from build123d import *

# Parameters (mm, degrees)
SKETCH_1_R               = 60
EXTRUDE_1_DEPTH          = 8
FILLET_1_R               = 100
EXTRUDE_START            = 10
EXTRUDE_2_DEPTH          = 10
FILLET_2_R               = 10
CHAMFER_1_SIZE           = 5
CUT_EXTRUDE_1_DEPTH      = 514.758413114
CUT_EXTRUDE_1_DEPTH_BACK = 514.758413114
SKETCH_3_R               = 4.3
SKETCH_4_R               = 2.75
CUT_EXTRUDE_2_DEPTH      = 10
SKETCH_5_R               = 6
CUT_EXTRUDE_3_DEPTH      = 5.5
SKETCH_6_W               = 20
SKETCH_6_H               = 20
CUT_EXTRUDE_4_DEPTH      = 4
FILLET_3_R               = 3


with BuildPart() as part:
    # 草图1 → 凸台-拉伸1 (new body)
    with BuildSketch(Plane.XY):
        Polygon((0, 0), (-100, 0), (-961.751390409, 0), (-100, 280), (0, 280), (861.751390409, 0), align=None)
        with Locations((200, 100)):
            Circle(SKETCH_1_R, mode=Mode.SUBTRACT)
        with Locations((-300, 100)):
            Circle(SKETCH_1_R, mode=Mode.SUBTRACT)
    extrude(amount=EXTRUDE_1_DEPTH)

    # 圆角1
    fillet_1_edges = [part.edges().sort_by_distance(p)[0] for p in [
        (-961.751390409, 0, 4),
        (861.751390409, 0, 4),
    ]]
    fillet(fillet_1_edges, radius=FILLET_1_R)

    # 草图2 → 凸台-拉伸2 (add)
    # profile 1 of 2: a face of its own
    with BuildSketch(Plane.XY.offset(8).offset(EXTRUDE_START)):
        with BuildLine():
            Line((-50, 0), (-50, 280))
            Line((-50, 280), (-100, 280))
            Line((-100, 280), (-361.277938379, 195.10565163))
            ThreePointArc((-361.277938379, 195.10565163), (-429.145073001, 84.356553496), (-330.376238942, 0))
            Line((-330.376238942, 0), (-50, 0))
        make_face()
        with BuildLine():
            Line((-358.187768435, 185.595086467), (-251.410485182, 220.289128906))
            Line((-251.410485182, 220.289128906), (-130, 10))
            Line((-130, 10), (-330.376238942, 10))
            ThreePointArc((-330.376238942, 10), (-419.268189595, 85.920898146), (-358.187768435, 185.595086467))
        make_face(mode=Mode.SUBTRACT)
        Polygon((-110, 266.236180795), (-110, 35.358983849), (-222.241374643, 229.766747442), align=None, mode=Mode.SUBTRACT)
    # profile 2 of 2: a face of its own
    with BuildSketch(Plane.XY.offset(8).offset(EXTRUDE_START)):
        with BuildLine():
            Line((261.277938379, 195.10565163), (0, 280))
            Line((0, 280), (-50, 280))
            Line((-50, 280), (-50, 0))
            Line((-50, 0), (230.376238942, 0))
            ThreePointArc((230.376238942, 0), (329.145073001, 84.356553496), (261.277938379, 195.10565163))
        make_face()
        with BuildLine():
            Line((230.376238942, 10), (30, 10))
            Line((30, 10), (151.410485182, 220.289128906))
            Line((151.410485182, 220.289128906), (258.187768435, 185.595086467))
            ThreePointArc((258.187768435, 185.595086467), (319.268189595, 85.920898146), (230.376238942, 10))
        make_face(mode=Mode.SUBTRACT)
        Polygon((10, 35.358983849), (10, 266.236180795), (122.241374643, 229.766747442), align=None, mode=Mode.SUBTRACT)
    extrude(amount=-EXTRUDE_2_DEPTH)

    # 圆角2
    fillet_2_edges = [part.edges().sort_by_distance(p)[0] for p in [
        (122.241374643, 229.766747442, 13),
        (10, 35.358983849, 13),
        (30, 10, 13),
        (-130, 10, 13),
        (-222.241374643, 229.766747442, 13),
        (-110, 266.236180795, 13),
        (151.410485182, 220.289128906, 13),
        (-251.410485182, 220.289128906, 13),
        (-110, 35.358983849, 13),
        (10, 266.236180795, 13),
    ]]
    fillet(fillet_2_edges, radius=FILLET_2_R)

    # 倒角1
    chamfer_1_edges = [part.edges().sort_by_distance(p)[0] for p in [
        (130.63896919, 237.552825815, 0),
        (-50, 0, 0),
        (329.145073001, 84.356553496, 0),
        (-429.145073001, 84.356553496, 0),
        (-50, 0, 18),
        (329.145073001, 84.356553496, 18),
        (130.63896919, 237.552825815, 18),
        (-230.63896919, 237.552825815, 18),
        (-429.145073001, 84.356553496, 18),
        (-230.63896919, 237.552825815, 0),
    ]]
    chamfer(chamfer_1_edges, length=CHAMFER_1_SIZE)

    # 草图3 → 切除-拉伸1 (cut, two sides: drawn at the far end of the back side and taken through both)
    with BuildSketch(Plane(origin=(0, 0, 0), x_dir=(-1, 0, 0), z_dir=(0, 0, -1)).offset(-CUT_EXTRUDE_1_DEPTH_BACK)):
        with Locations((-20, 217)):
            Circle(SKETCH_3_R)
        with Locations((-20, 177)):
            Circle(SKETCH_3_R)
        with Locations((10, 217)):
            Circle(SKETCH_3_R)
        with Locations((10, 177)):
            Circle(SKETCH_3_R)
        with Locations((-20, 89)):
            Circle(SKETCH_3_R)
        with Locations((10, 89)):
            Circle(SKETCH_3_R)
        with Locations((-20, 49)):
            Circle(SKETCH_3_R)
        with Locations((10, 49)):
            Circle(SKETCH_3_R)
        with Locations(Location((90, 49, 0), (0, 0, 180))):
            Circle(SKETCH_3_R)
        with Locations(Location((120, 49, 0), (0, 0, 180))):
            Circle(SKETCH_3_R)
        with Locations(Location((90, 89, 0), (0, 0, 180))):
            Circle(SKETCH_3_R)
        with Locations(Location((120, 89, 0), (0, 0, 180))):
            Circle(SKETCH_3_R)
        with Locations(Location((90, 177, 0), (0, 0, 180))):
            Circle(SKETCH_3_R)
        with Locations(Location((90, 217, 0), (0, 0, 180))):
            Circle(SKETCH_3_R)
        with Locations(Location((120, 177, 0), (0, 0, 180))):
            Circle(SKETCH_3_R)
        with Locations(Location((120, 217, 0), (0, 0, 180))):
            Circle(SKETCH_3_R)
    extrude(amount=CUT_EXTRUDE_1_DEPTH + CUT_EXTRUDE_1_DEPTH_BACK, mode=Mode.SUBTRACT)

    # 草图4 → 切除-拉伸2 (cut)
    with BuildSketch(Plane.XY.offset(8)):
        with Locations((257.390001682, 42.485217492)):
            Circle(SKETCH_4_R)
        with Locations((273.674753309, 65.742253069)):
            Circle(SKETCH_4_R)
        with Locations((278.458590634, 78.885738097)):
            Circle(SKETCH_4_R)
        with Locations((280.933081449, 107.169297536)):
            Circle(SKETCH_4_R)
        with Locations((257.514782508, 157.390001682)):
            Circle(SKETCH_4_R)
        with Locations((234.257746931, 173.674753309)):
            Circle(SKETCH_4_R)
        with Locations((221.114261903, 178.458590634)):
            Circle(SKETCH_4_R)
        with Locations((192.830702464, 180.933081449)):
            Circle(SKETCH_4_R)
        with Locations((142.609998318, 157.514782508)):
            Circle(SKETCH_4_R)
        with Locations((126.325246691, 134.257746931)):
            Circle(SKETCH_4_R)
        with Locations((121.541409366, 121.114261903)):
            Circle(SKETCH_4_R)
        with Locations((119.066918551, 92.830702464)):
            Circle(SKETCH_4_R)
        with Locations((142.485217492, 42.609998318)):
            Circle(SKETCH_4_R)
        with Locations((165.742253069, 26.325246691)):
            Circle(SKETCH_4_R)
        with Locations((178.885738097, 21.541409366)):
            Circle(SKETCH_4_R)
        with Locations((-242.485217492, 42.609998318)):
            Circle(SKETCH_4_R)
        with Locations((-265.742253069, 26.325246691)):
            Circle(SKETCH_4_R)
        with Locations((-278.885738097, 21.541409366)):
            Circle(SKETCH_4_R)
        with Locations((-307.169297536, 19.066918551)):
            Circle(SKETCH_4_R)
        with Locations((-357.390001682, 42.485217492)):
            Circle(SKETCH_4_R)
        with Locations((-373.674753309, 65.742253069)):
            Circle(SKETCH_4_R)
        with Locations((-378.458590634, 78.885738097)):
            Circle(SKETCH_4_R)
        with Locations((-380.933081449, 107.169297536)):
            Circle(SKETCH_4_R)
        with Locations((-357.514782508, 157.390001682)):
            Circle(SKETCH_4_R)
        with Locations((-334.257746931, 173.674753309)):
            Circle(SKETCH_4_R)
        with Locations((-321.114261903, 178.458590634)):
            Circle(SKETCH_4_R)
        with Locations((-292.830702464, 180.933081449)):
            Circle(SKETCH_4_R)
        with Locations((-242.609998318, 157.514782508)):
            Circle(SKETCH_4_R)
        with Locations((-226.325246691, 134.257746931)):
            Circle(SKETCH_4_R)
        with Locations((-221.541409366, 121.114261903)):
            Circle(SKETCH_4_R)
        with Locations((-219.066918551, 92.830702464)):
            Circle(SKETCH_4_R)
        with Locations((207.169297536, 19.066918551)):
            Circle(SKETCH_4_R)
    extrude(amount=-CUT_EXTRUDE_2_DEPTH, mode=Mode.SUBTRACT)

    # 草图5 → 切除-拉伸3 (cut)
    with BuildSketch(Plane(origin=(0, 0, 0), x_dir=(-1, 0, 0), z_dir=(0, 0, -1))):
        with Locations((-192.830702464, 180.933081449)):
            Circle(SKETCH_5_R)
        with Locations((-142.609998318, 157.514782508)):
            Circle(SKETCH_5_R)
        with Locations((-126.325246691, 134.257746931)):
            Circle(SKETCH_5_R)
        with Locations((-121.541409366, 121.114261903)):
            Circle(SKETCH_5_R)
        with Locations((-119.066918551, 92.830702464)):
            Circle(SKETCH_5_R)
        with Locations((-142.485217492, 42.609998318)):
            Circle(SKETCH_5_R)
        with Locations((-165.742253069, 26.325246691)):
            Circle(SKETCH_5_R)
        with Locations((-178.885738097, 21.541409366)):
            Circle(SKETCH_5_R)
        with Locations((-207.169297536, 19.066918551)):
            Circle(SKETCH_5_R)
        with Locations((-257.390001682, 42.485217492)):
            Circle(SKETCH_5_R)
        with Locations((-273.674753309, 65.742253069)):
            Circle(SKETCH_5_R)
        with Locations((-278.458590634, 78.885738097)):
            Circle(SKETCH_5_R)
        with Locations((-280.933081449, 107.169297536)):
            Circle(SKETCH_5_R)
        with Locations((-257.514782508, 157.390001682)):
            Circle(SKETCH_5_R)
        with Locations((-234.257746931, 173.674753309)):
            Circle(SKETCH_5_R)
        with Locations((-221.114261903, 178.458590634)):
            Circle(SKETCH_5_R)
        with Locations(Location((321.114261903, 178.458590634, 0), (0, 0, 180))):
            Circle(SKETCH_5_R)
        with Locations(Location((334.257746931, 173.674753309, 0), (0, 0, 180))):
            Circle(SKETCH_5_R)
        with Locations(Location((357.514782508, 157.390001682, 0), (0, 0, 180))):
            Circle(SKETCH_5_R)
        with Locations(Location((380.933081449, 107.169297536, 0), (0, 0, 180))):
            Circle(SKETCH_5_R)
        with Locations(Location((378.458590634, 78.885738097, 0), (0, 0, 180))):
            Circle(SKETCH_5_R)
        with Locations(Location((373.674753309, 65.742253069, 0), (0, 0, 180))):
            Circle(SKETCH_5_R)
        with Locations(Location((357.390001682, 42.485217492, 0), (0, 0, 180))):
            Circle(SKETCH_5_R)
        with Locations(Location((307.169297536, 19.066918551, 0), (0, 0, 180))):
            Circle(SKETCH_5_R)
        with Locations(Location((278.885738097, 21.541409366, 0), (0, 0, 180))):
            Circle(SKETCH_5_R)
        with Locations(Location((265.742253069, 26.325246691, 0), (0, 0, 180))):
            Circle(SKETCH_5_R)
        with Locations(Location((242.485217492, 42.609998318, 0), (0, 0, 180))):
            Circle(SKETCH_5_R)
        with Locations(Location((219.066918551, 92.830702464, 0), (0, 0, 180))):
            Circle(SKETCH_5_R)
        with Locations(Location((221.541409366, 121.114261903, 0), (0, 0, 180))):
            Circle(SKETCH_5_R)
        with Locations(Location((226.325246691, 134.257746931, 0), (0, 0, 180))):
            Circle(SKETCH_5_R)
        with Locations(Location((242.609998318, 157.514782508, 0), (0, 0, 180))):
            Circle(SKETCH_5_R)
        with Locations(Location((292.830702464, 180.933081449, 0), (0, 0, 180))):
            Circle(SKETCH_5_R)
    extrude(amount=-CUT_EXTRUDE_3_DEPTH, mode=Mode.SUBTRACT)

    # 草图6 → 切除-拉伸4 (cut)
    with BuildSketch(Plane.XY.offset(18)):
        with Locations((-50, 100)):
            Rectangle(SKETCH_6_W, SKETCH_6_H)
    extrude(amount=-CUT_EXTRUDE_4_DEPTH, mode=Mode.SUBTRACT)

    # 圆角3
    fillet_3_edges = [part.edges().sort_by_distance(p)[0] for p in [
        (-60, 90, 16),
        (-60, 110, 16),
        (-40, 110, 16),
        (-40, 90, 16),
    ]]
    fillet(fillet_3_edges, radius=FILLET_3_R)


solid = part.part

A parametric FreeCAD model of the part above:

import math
import FreeCAD as App
import Part
import Sketcher
Q = App.Units.Quantity


def edges_at(feature, points):
    """Names of the edges that pass closest to the given points."""
    edges = feature.Shape.Edges
    near = lambda p: min(range(len(edges)), key=lambda i: edges[i].distToShape(Part.Vertex(*p))[0])
    return sorted({f"Edge{near(p) + 1}" for p in points})

doc = App.newDocument("Part")
body = doc.addObject("PartDesign::Body", "Body")

sketch1 = body.newObject("Sketcher::SketchObject", "Sketch")
sketch1.AttachmentSupport = (doc.getObject("XY_Plane"), [""])
sketch1.MapMode = "FlatFace"
sketch1.addGeometry([
    Part.LineSegment(App.Vector(-962, 0, 0), App.Vector(862, 0, 0)),
    Part.LineSegment(App.Vector(862, 0, 0), App.Vector(0, 280, 0)),
    Part.LineSegment(App.Vector(0, 280, 0), App.Vector(-100, 280, 0)),
    Part.LineSegment(App.Vector(-100, 280, 0), App.Vector(-962, 0, 0)),
    Part.Circle(App.Vector(200, 100, 0), App.Vector(0, 0, 1), 60),
    Part.Circle(App.Vector(-300, 100, 0), App.Vector(0, 0, 1), 60),
], False)
sketch1.addConstraint([
    Sketcher.Constraint("Coincident", 0, 2, 1, 1),
    Sketcher.Constraint("Coincident", 1, 2, 2, 1),
    Sketcher.Constraint("Coincident", 2, 2, 3, 1),
    Sketcher.Constraint("Coincident", 3, 2, 0, 1),
    Sketcher.Constraint("Horizontal", 0),
    Sketcher.Constraint("Horizontal", 2),
    Sketcher.Constraint("Equal", 4, 5),
    Sketcher.Constraint("PointOnObject", 0, 2, -1),
    Sketcher.Constraint("PointOnObject", 1, 2, -2),
    Sketcher.Constraint("Horizontal", 4, 3, 5, 3),
    Sketcher.Constraint("Equal", 1, 3),
    Sketcher.Constraint("Diameter", 4, Q("120 mm")),
    Sketcher.Constraint("DistanceX", 2, 2, 2, 1, Q("100 mm")),
    Sketcher.Constraint("Angle", 1, Q("162 deg")),
    Sketcher.Constraint("DistanceX", -1, 1, 4, 3, Q("200 mm")),
    Sketcher.Constraint("DistanceY", -1, 1, 4, 3, Q("100 mm")),
    Sketcher.Constraint("DistanceX", 5, 3, -1, 1, Q("300 mm")),
    Sketcher.Constraint("DistanceY", -1, 1, 1, 2, Q("280 mm")),
])
pad1 = body.newObject("PartDesign::Pad", "Pad")
pad1.Profile = sketch1
pad1.Length = 8
doc.recompute()

fillet = body.newObject("PartDesign::Fillet", "Fillet")
fillet.Base = (pad1, edges_at(pad1, [(-961.751, 0, 4), (861.751, 0, 4)]))
fillet.Radius = 100

sketch2 = body.newObject("Sketcher::SketchObject", "Sketch001")
sketch2.AttachmentSupport = (doc.getObject("XY_Plane"), [""])
sketch2.MapMode = "FlatFace"
sketch2.AttachmentOffset = App.Placement(App.Vector(0, 0, 18), App.Rotation())
sketch2.addGeometry([
    Part.LineSegment(App.Vector(-330, 0, 0), App.Vector(230, 0, 0)),
    Part.ArcOfCircle(Part.Circle(App.Vector(230, 100, 0), App.Vector(0, 0, 1), 100), math.radians(-90), math.radians(72)),
    Part.LineSegment(App.Vector(261, 195, 0), App.Vector(0, 280, 0)),
    Part.LineSegment(App.Vector(0, 280, 0), App.Vector(-100, 280, 0)),
    Part.LineSegment(App.Vector(-100, 280, 0), App.Vector(-361, 195, 0)),
    Part.ArcOfCircle(Part.Circle(App.Vector(-330, 100, 0), App.Vector(0, 0, 1), 100), math.radians(108), math.radians(270)),
    Part.ArcOfCircle(Part.Circle(App.Vector(-330, 100, 0), App.Vector(0, 0, 1), 90), math.radians(108), math.radians(270)),
    Part.LineSegment(App.Vector(-358, 186, 0), App.Vector(-251, 220, 0)),
    Part.LineSegment(App.Vector(-251, 220, 0), App.Vector(-130, 10, 0)),
    Part.LineSegment(App.Vector(-130, 10, 0), App.Vector(-330, 10, 0)),
    Part.LineSegment(App.Vector(-222, 230, 0), App.Vector(-110, 266, 0)),
    Part.LineSegment(App.Vector(-110, 266, 0), App.Vector(-110, 35, 0)),
    Part.LineSegment(App.Vector(-110, 35, 0), App.Vector(-222, 230, 0)),
    Part.LineSegment(App.Vector(10, 35, 0), App.Vector(10, 266, 0)),
    Part.LineSegment(App.Vector(10, 266, 0), App.Vector(122, 230, 0)),
    Part.LineSegment(App.Vector(122, 230, 0), App.Vector(10, 35, 0)),
    Part.ArcOfCircle(Part.Circle(App.Vector(230, 100, 0), App.Vector(0, 0, 1), 90), math.radians(-90), math.radians(72)),
    Part.LineSegment(App.Vector(230, 10, 0), App.Vector(30, 10, 0)),
    Part.LineSegment(App.Vector(30, 10, 0), App.Vector(151, 220, 0)),
    Part.LineSegment(App.Vector(151, 220, 0), App.Vector(258, 186, 0)),
], False)
sketch2.addConstraint([
    Sketcher.Constraint("Tangent", 0, 2, 1, 1),
    Sketcher.Constraint("Tangent", 1, 2, 2, 1),
    Sketcher.Constraint("Coincident", 2, 2, 3, 1),
    Sketcher.Constraint("Coincident", 3, 2, 4, 1),
    Sketcher.Constraint("Tangent", 4, 2, 5, 1),
    Sketcher.Constraint("Tangent", 5, 2, 0, 1),
    Sketcher.Constraint("Tangent", 6, 1, 7, 1),
    Sketcher.Constraint("Coincident", 7, 2, 8, 1),
    Sketcher.Constraint("Coincident", 8, 2, 9, 1),
    Sketcher.Constraint("Tangent", 9, 2, 6, 2),
    Sketcher.Constraint("Coincident", 10, 2, 11, 1),
    Sketcher.Constraint("Coincident", 11, 2, 12, 1),
    Sketcher.Constraint("Coincident", 12, 2, 10, 1),
    Sketcher.Constraint("Coincident", 13, 2, 14, 1),
    Sketcher.Constraint("Coincident", 14, 2, 15, 1),
    Sketcher.Constraint("Coincident", 15, 2, 13, 1),
    Sketcher.Constraint("Tangent", 16, 1, 17, 1),
    Sketcher.Constraint("Coincident", 17, 2, 18, 1),
    Sketcher.Constraint("Coincident", 18, 2, 19, 1),
    Sketcher.Constraint("Tangent", 19, 2, 16, 2),
    Sketcher.Constraint("Horizontal", 0),
    Sketcher.Constraint("Horizontal", 3),
    Sketcher.Constraint("Horizontal", 9),
    Sketcher.Constraint("Vertical", 11),
    Sketcher.Constraint("Vertical", 13),
    Sketcher.Constraint("Horizontal", 17),
    Sketcher.Constraint("Coincident", 6, 3, 5, 3),
    Sketcher.Constraint("Coincident", 16, 3, 1, 3),
    Sketcher.Constraint("Equal", 1, 5),
    Sketcher.Constraint("Equal", 6, 16),
    Sketcher.Constraint("PointOnObject", 0, 2, -1),
    Sketcher.Constraint("PointOnObject", 2, 2, -2),
    Sketcher.Constraint("Parallel", 4, 7),
    Sketcher.Constraint("Parallel", 7, 10),
    Sketcher.Constraint("Parallel", 8, 12),
    Sketcher.Constraint("Parallel", 2, 14),
    Sketcher.Constraint("Parallel", 15, 18),
    Sketcher.Constraint("Parallel", 14, 19),
    Sketcher.Constraint("Horizontal", 10, 2, 13, 2),
    Sketcher.Constraint("Horizontal", 12, 2, 14, 2),
    Sketcher.Constraint("Horizontal", 11, 2, 15, 2),
    Sketcher.Constraint("Horizontal", 7, 2, 18, 2),
    Sketcher.Constraint("Equal", 9, 17),
    Sketcher.Constraint("Radius", 1, Q("100 mm")),
    Sketcher.Constraint("Radius", 6, Q("90 mm")),
    Sketcher.Constraint("DistanceX", 3, 2, 3, 1, Q("100 mm")),
    Sketcher.Constraint("Angle", 2, Q("162 deg")),
    Sketcher.Constraint("Angle", 8, Q("-60 deg")),
    Sketcher.Constraint("DistanceY", -1, 1, 2, 2, Q("280 mm")),
    Sketcher.Constraint("DistanceX", 8, 2, -1, 1, Q("130 mm")),
    Sketcher.Constraint("DistanceX", 10, 2, -1, 1, Q("110 mm")),
    Sketcher.Constraint("DistanceX", -1, 1, 13, 2, Q("10 mm")),
    Sketcher.Constraint("Distance", 12, Q("224.482749 mm")),
    Sketcher.Constraint("DistanceY", -1, 1, 10, 2, Q("266.236181 mm")),
])
pad2 = body.newObject("PartDesign::Pad", "Pad001")
pad2.Profile = sketch2
pad2.Length = 10
pad2.Reversed = True
doc.recompute()

fillet2 = body.newObject("PartDesign::Fillet", "Fillet001")
fillet2.Base = (pad2, edges_at(pad2, [
    (122.241, 229.767, 13),
    (10, 35.359, 13),
    (30, 10, 13),
    (-130, 10, 13),
    (-222.241, 229.767, 13),
    (-110, 266.236, 13),
    (151.41, 220.289, 13),
    (-251.41, 220.289, 13),
    (-110, 35.359, 13),
    (10, 266.236, 13),
]))
fillet2.Radius = 10
doc.recompute()

chamfer = body.newObject("PartDesign::Chamfer", "Chamfer")
chamfer.Base = (fillet2, edges_at(fillet2, [
    (130.639, 237.553, 0),
    (-50, 0, 0),
    (329.145, 84.357, 0),
    (-429.145, 84.357, 0),
    (-50, 0, 18),
    (329.145, 84.357, 18),
    (130.639, 237.553, 18),
    (-230.639, 237.553, 18),
    (-429.145, 84.357, 18),
    (-230.639, 237.553, 0),
]))
chamfer.Size = 5

sketch3 = body.newObject("Sketcher::SketchObject", "Sketch002")
sketch3.AttachmentSupport = (doc.getObject("XY_Plane"), [""])
sketch3.MapMode = "FlatFace"
sketch3.addGeometry([
    Part.Circle(App.Vector(20, 217, 0), App.Vector(0, 0, 1), 4.3),
    Part.Circle(App.Vector(20, 177, 0), App.Vector(0, 0, 1), 4.3),
    Part.Circle(App.Vector(-10, 217, 0), App.Vector(0, 0, 1), 4.3),
    Part.Circle(App.Vector(-10, 177, 0), App.Vector(0, 0, 1), 4.3),
    Part.Circle(App.Vector(20, 89, 0), App.Vector(0, 0, 1), 4.3),
    Part.Circle(App.Vector(-10, 89, 0), App.Vector(0, 0, 1), 4.3),
    Part.Circle(App.Vector(20, 49, 0), App.Vector(0, 0, 1), 4.3),
    Part.Circle(App.Vector(-10, 49, 0), App.Vector(0, 0, 1), 4.3),
    Part.Circle(App.Vector(-90, 49, 0), App.Vector(0, 0, 1), 4.3),
    Part.Circle(App.Vector(-120, 49, 0), App.Vector(0, 0, 1), 4.3),
    Part.Circle(App.Vector(-90, 89, 0), App.Vector(0, 0, 1), 4.3),
    Part.Circle(App.Vector(-120, 89, 0), App.Vector(0, 0, 1), 4.3),
    Part.Circle(App.Vector(-90, 177, 0), App.Vector(0, 0, 1), 4.3),
    Part.Circle(App.Vector(-90, 217, 0), App.Vector(0, 0, 1), 4.3),
    Part.Circle(App.Vector(-120, 177, 0), App.Vector(0, 0, 1), 4.3),
    Part.Circle(App.Vector(-120, 217, 0), App.Vector(0, 0, 1), 4.3),
], False)
sketch3.addConstraint([
    Sketcher.Constraint("Equal", 0, 1),
    Sketcher.Constraint("Equal", 1, 2),
    Sketcher.Constraint("Equal", 2, 3),
    Sketcher.Constraint("Equal", 3, 4),
    Sketcher.Constraint("Equal", 4, 5),
    Sketcher.Constraint("Equal", 5, 6),
    Sketcher.Constraint("Equal", 6, 7),
    Sketcher.Constraint("Equal", 7, 8),
    Sketcher.Constraint("Equal", 8, 9),
    Sketcher.Constraint("Equal", 9, 10),
    Sketcher.Constraint("Equal", 10, 11),
    Sketcher.Constraint("Equal", 11, 12),
    Sketcher.Constraint("Equal", 12, 13),
    Sketcher.Constraint("Equal", 13, 14),
    Sketcher.Constraint("Equal", 14, 15),
    Sketcher.Constraint("Horizontal", 0, 3, 2, 3),
    Sketcher.Constraint("Horizontal", 1, 3, 3, 3),
    Sketcher.Constraint("Horizontal", 4, 3, 5, 3),
    Sketcher.Constraint("Horizontal", 6, 3, 7, 3),
    Sketcher.Constraint("Horizontal", 7, 3, 8, 3),
    Sketcher.Constraint("Horizontal", 8, 3, 9, 3),
    Sketcher.Constraint("Horizontal", 5, 3, 10, 3),
    Sketcher.Constraint("Horizontal", 10, 3, 11, 3),
    Sketcher.Constraint("Horizontal", 3, 3, 12, 3),
    Sketcher.Constraint("Horizontal", 2, 3, 13, 3),
    Sketcher.Constraint("Horizontal", 12, 3, 14, 3),
    Sketcher.Constraint("Horizontal", 13, 3, 15, 3),
    Sketcher.Constraint("Vertical", 0, 3, 1, 3),
    Sketcher.Constraint("Vertical", 2, 3, 3, 3),
    Sketcher.Constraint("Vertical", 1, 3, 4, 3),
    Sketcher.Constraint("Vertical", 3, 3, 5, 3),
    Sketcher.Constraint("Vertical", 4, 3, 6, 3),
    Sketcher.Constraint("Vertical", 5, 3, 7, 3),
    Sketcher.Constraint("Vertical", 8, 3, 10, 3),
    Sketcher.Constraint("Vertical", 9, 3, 11, 3),
    Sketcher.Constraint("Vertical", 10, 3, 12, 3),
    Sketcher.Constraint("Vertical", 12, 3, 13, 3),
    Sketcher.Constraint("Vertical", 11, 3, 14, 3),
    Sketcher.Constraint("Vertical", 14, 3, 15, 3),
    Sketcher.Constraint("Diameter", 0, Q("8.6 mm")),
    Sketcher.Constraint("DistanceX", -1, 1, 0, 3, Q("20 mm")),
    Sketcher.Constraint("DistanceY", -1, 1, 0, 3, Q("217 mm")),
    Sketcher.Constraint("DistanceY", -1, 1, 1, 3, Q("177 mm")),
    Sketcher.Constraint("DistanceX", 2, 3, -1, 1, Q("10 mm")),
    Sketcher.Constraint("DistanceY", -1, 1, 4, 3, Q("89 mm")),
    Sketcher.Constraint("DistanceY", -1, 1, 6, 3, Q("49 mm")),
    Sketcher.Constraint("DistanceX", 8, 3, -1, 1, Q("90 mm")),
    Sketcher.Constraint("DistanceX", 9, 3, -1, 1, Q("120 mm")),
])
pocket1 = body.newObject("PartDesign::Pocket", "Pocket")
pocket1.Profile = sketch3
pocket1.Type = "ThroughAll"
pocket1.Midplane = True

sketch4 = body.newObject("Sketcher::SketchObject", "Sketch003")
sketch4.AttachmentSupport = (doc.getObject("XY_Plane"), [""])
sketch4.MapMode = "FlatFace"
sketch4.AttachmentOffset = App.Placement(App.Vector(0, 0, 8), App.Rotation())
sketch4.addGeometry([
    Part.Circle(App.Vector(257.4, 42.5, 0), App.Vector(0, 0, 1), 2.8),
    Part.Circle(App.Vector(273.7, 65.7, 0), App.Vector(0, 0, 1), 2.8),
    Part.Circle(App.Vector(278.5, 78.9, 0), App.Vector(0, 0, 1), 2.8),
    Part.Circle(App.Vector(280.9, 107.2, 0), App.Vector(0, 0, 1), 2.8),
    Part.Circle(App.Vector(257.5, 157.4, 0), App.Vector(0, 0, 1), 2.8),
    Part.Circle(App.Vector(234.3, 173.7, 0), App.Vector(0, 0, 1), 2.8),
    Part.Circle(App.Vector(221.1, 178.5, 0), App.Vector(0, 0, 1), 2.8),
    Part.Circle(App.Vector(192.8, 180.9, 0), App.Vector(0, 0, 1), 2.8),
    Part.Circle(App.Vector(142.6, 157.5, 0), App.Vector(0, 0, 1), 2.8),
    Part.Circle(App.Vector(126.3, 134.3, 0), App.Vector(0, 0, 1), 2.8),
    Part.Circle(App.Vector(121.5, 121.1, 0), App.Vector(0, 0, 1), 2.8),
    Part.Circle(App.Vector(119.1, 92.8, 0), App.Vector(0, 0, 1), 2.8),
    Part.Circle(App.Vector(142.5, 42.6, 0), App.Vector(0, 0, 1), 2.8),
    Part.Circle(App.Vector(165.7, 26.3, 0), App.Vector(0, 0, 1), 2.8),
    Part.Circle(App.Vector(178.9, 21.5, 0), App.Vector(0, 0, 1), 2.8),
    Part.Circle(App.Vector(-242.5, 42.6, 0), App.Vector(0, 0, 1), 2.8),
    Part.Circle(App.Vector(-265.7, 26.3, 0), App.Vector(0, 0, 1), 2.8),
    Part.Circle(App.Vector(-278.9, 21.5, 0), App.Vector(0, 0, 1), 2.8),
    Part.Circle(App.Vector(-307.2, 19.1, 0), App.Vector(0, 0, 1), 2.8),
    Part.Circle(App.Vector(-357.4, 42.5, 0), App.Vector(0, 0, 1), 2.8),
    Part.Circle(App.Vector(-373.7, 65.7, 0), App.Vector(0, 0, 1), 2.8),
    Part.Circle(App.Vector(-378.5, 78.9, 0), App.Vector(0, 0, 1), 2.8),
    Part.Circle(App.Vector(-380.9, 107.2, 0), App.Vector(0, 0, 1), 2.8),
    Part.Circle(App.Vector(-357.5, 157.4, 0), App.Vector(0, 0, 1), 2.8),
    Part.Circle(App.Vector(-334.3, 173.7, 0), App.Vector(0, 0, 1), 2.8),
    Part.Circle(App.Vector(-321.1, 178.5, 0), App.Vector(0, 0, 1), 2.8),
    Part.Circle(App.Vector(-292.8, 180.9, 0), App.Vector(0, 0, 1), 2.8),
    Part.Circle(App.Vector(-242.6, 157.5, 0), App.Vector(0, 0, 1), 2.8),
    Part.Circle(App.Vector(-226.3, 134.3, 0), App.Vector(0, 0, 1), 2.8),
    Part.Circle(App.Vector(-221.5, 121.1, 0), App.Vector(0, 0, 1), 2.8),
    Part.Circle(App.Vector(-219.1, 92.8, 0), App.Vector(0, 0, 1), 2.8),
    Part.Circle(App.Vector(207.2, 19.1, 0), App.Vector(0, 0, 1), 2.8),
], False)
sketch4.addConstraint([
    Sketcher.Constraint("Equal", 0, 1),
    Sketcher.Constraint("Equal", 1, 2),
    Sketcher.Constraint("Equal", 2, 3),
    Sketcher.Constraint("Equal", 3, 4),
    Sketcher.Constraint("Equal", 4, 5),
    Sketcher.Constraint("Equal", 5, 6),
    Sketcher.Constraint("Equal", 6, 7),
    Sketcher.Constraint("Equal", 7, 8),
    Sketcher.Constraint("Equal", 8, 9),
    Sketcher.Constraint("Equal", 9, 10),
    Sketcher.Constraint("Equal", 10, 11),
    Sketcher.Constraint("Equal", 11, 12),
    Sketcher.Constraint("Equal", 12, 13),
    Sketcher.Constraint("Equal", 13, 14),
    Sketcher.Constraint("Equal", 14, 15),
    Sketcher.Constraint("Equal", 15, 16),
    Sketcher.Constraint("Equal", 16, 17),
    Sketcher.Constraint("Equal", 17, 18),
    Sketcher.Constraint("Equal", 18, 19),
    Sketcher.Constraint("Equal", 19, 20),
    Sketcher.Constraint("Equal", 20, 21),
    Sketcher.Constraint("Equal", 21, 22),
    Sketcher.Constraint("Equal", 22, 23),
    Sketcher.Constraint("Equal", 23, 24),
    Sketcher.Constraint("Equal", 24, 25),
    Sketcher.Constraint("Equal", 25, 26),
    Sketcher.Constraint("Equal", 26, 27),
    Sketcher.Constraint("Equal", 27, 28),
    Sketcher.Constraint("Equal", 28, 29),
    Sketcher.Constraint("Equal", 29, 30),
    Sketcher.Constraint("Equal", 30, 31),
    Sketcher.Constraint("Horizontal", 12, 3, 15, 3),
    Sketcher.Constraint("Horizontal", 13, 3, 16, 3),
    Sketcher.Constraint("Horizontal", 14, 3, 17, 3),
    Sketcher.Constraint("Horizontal", 0, 3, 19, 3),
    Sketcher.Constraint("Horizontal", 1, 3, 20, 3),
    Sketcher.Constraint("Horizontal", 2, 3, 21, 3),
    Sketcher.Constraint("Horizontal", 3, 3, 22, 3),
    Sketcher.Constraint("Horizontal", 4, 3, 23, 3),
    Sketcher.Constraint("Horizontal", 5, 3, 24, 3),
    Sketcher.Constraint("Horizontal", 6, 3, 25, 3),
    Sketcher.Constraint("Horizontal", 7, 3, 26, 3),
    Sketcher.Constraint("Horizontal", 8, 3, 27, 3),
    Sketcher.Constraint("Horizontal", 9, 3, 28, 3),
    Sketcher.Constraint("Horizontal", 10, 3, 29, 3),
    Sketcher.Constraint("Horizontal", 11, 3, 30, 3),
    Sketcher.Constraint("Horizontal", 18, 3, 31, 3),
    Sketcher.Constraint("Diameter", 0, Q("5.5 mm")),
    Sketcher.Constraint("DistanceX", -1, 1, 0, 3, Q("257.390002 mm")),
    Sketcher.Constraint("DistanceY", -1, 1, 4, 3, Q("157.390002 mm")),
    Sketcher.Constraint("DistanceX", -1, 1, 8, 3, Q("142.609998 mm")),
    Sketcher.Constraint("DistanceY", -1, 1, 12, 3, Q("42.609998 mm")),
    Sketcher.Constraint("DistanceX", 19, 3, -1, 1, Q("357.390002 mm")),
    Sketcher.Constraint("DistanceX", 27, 3, -1, 1, Q("242.609998 mm")),
    Sketcher.Constraint("DistanceX", 4, 3, 3, 3, Q("23.418299 mm")),
    Sketcher.Constraint("DistanceY", 1, 3, 5, 3, Q("107.9325 mm")),
    Sketcher.Constraint("DistanceY", 8, 3, 7, 3, Q("23.418299 mm")),
    Sketcher.Constraint("DistanceX", 9, 3, 5, 3, Q("107.9325 mm")),
    Sketcher.Constraint("DistanceX", 11, 3, 12, 3, Q("23.418299 mm")),
    Sketcher.Constraint("DistanceX", 13, 3, 1, 3, Q("107.9325 mm")),
    Sketcher.Constraint("DistanceX", 16, 3, 9, 3, Q("392.0675 mm")),
    Sketcher.Constraint("DistanceY", 16, 3, 9, 3, Q("107.9325 mm")),
    Sketcher.Constraint("DistanceY", 18, 3, 19, 3, Q("23.418299 mm")),
    Sketcher.Constraint("DistanceX", 20, 3, 16, 3, Q("107.9325 mm")),
    Sketcher.Constraint("DistanceX", 22, 3, 23, 3, Q("23.418299 mm")),
    Sketcher.Constraint("DistanceX", 24, 3, 28, 3, Q("107.9325 mm")),
    Sketcher.Constraint("DistanceX", 15, 3, 30, 3, Q("23.418299 mm")),
    Sketcher.Constraint("DistanceX", -1, 1, 2, 3, Q("278.458591 mm")),
    Sketcher.Constraint("DistanceY", -1, 1, 2, 3, Q("78.885738 mm")),
    Sketcher.Constraint("DistanceX", -1, 1, 3, 3, Q("280.933081 mm")),
    Sketcher.Constraint("DistanceX", -1, 1, 6, 3, Q("221.114262 mm")),
    Sketcher.Constraint("DistanceY", -1, 1, 6, 3, Q("178.458591 mm")),
    Sketcher.Constraint("DistanceY", -1, 1, 7, 3, Q("180.933081 mm")),
    Sketcher.Constraint("DistanceX", -1, 1, 10, 3, Q("121.541409 mm")),
    Sketcher.Constraint("DistanceY", -1, 1, 10, 3, Q("121.114262 mm")),
    Sketcher.Constraint("DistanceX", -1, 1, 11, 3, Q("119.066919 mm")),
    Sketcher.Constraint("DistanceX", -1, 1, 14, 3, Q("178.885738 mm")),
    Sketcher.Constraint("DistanceY", -1, 1, 14, 3, Q("21.541409 mm")),
    Sketcher.Constraint("DistanceX", 17, 3, -1, 1, Q("278.885738 mm")),
    Sketcher.Constraint("DistanceY", -1, 1, 18, 3, Q("19.066919 mm")),
    Sketcher.Constraint("DistanceX", 21, 3, -1, 1, Q("378.458591 mm")),
    Sketcher.Constraint("DistanceX", 22, 3, -1, 1, Q("380.933081 mm")),
    Sketcher.Constraint("DistanceX", 25, 3, -1, 1, Q("321.114262 mm")),
    Sketcher.Constraint("DistanceX", 29, 3, -1, 1, Q("221.541409 mm")),
    Sketcher.Constraint("DistanceX", 30, 3, -1, 1, Q("219.066919 mm")),
    Sketcher.Constraint("DistanceX", 0, 3, 1, 3, Q("16.284752 mm")),
    Sketcher.Constraint("DistanceY", 2, 3, 3, 3, Q("28.283559 mm")),
    Sketcher.Constraint("DistanceY", 1, 3, 4, 3, Q("91.647749 mm")),
    Sketcher.Constraint("DistanceX", 7, 3, 6, 3, Q("28.283559 mm")),
    Sketcher.Constraint("DistanceX", 8, 3, 5, 3, Q("91.647749 mm")),
    Sketcher.Constraint("DistanceY", 11, 3, 10, 3, Q("28.283559 mm")),
    Sketcher.Constraint("DistanceY", 12, 3, 9, 3, Q("91.647749 mm")),
    Sketcher.Constraint("DistanceX", 18, 3, 17, 3, Q("28.283559 mm")),
    Sketcher.Constraint("DistanceX", 25, 3, 26, 3, Q("28.283559 mm")),
    Sketcher.Constraint("DistanceX", 24, 3, 27, 3, Q("91.647749 mm")),
    Sketcher.Constraint("DistanceX", 14, 3, 31, 3, Q("28.283559 mm")),
])
pocket2 = body.newObject("PartDesign::Pocket", "Pocket001")
pocket2.Profile = sketch4
pocket2.Length = 10

sketch5 = body.newObject("Sketcher::SketchObject", "Sketch004")
sketch5.AttachmentSupport = (doc.getObject("XY_Plane"), [""])
sketch5.MapMode = "FlatFace"
sketch5.addGeometry([
    Part.Circle(App.Vector(193, 181, 0), App.Vector(0, 0, 1), 6),
    Part.Circle(App.Vector(143, 158, 0), App.Vector(0, 0, 1), 6),
    Part.Circle(App.Vector(126, 134, 0), App.Vector(0, 0, 1), 6),
    Part.Circle(App.Vector(122, 121, 0), App.Vector(0, 0, 1), 6),
    Part.Circle(App.Vector(119, 93, 0), App.Vector(0, 0, 1), 6),
    Part.Circle(App.Vector(142, 43, 0), App.Vector(0, 0, 1), 6),
    Part.Circle(App.Vector(166, 26, 0), App.Vector(0, 0, 1), 6),
    Part.Circle(App.Vector(179, 22, 0), App.Vector(0, 0, 1), 6),
    Part.Circle(App.Vector(207, 19, 0), App.Vector(0, 0, 1), 6),
    Part.Circle(App.Vector(257, 42, 0), App.Vector(0, 0, 1), 6),
    Part.Circle(App.Vector(274, 66, 0), App.Vector(0, 0, 1), 6),
    Part.Circle(App.Vector(278, 79, 0), App.Vector(0, 0, 1), 6),
    Part.Circle(App.Vector(281, 107, 0), App.Vector(0, 0, 1), 6),
    Part.Circle(App.Vector(258, 157, 0), App.Vector(0, 0, 1), 6),
    Part.Circle(App.Vector(234, 174, 0), App.Vector(0, 0, 1), 6),
    Part.Circle(App.Vector(221, 178, 0), App.Vector(0, 0, 1), 6),
    Part.Circle(App.Vector(-321, 178, 0), App.Vector(0, 0, 1), 6),
    Part.Circle(App.Vector(-334, 174, 0), App.Vector(0, 0, 1), 6),
    Part.Circle(App.Vector(-358, 157, 0), App.Vector(0, 0, 1), 6),
    Part.Circle(App.Vector(-381, 107, 0), App.Vector(0, 0, 1), 6),
    Part.Circle(App.Vector(-378, 79, 0), App.Vector(0, 0, 1), 6),
    Part.Circle(App.Vector(-374, 66, 0), App.Vector(0, 0, 1), 6),
    Part.Circle(App.Vector(-357, 42, 0), App.Vector(0, 0, 1), 6),
    Part.Circle(App.Vector(-307, 19, 0), App.Vector(0, 0, 1), 6),
    Part.Circle(App.Vector(-279, 22, 0), App.Vector(0, 0, 1), 6),
    Part.Circle(App.Vector(-266, 26, 0), App.Vector(0, 0, 1), 6),
    Part.Circle(App.Vector(-242, 43, 0), App.Vector(0, 0, 1), 6),
    Part.Circle(App.Vector(-219, 93, 0), App.Vector(0, 0, 1), 6),
    Part.Circle(App.Vector(-222, 121, 0), App.Vector(0, 0, 1), 6),
    Part.Circle(App.Vector(-226, 134, 0), App.Vector(0, 0, 1), 6),
    Part.Circle(App.Vector(-243, 158, 0), App.Vector(0, 0, 1), 6),
    Part.Circle(App.Vector(-293, 181, 0), App.Vector(0, 0, 1), 6),
], False)
sketch5.addConstraint([
    Sketcher.Constraint("Equal", 0, 1),
    Sketcher.Constraint("Equal", 1, 2),
    Sketcher.Constraint("Equal", 2, 3),
    Sketcher.Constraint("Equal", 3, 4),
    Sketcher.Constraint("Equal", 4, 5),
    Sketcher.Constraint("Equal", 5, 6),
    Sketcher.Constraint("Equal", 6, 7),
    Sketcher.Constraint("Equal", 7, 8),
    Sketcher.Constraint("Equal", 8, 9),
    Sketcher.Constraint("Equal", 9, 10),
    Sketcher.Constraint("Equal", 10, 11),
    Sketcher.Constraint("Equal", 11, 12),
    Sketcher.Constraint("Equal", 12, 13),
    Sketcher.Constraint("Equal", 13, 14),
    Sketcher.Constraint("Equal", 14, 15),
    Sketcher.Constraint("Equal", 15, 16),
    Sketcher.Constraint("Equal", 16, 17),
    Sketcher.Constraint("Equal", 17, 18),
    Sketcher.Constraint("Equal", 18, 19),
    Sketcher.Constraint("Equal", 19, 20),
    Sketcher.Constraint("Equal", 20, 21),
    Sketcher.Constraint("Equal", 21, 22),
    Sketcher.Constraint("Equal", 22, 23),
    Sketcher.Constraint("Equal", 23, 24),
    Sketcher.Constraint("Equal", 24, 25),
    Sketcher.Constraint("Equal", 25, 26),
    Sketcher.Constraint("Equal", 26, 27),
    Sketcher.Constraint("Equal", 27, 28),
    Sketcher.Constraint("Equal", 28, 29),
    Sketcher.Constraint("Equal", 29, 30),
    Sketcher.Constraint("Equal", 30, 31),
    Sketcher.Constraint("Horizontal", 15, 3, 16, 3),
    Sketcher.Constraint("Horizontal", 14, 3, 17, 3),
    Sketcher.Constraint("Horizontal", 13, 3, 18, 3),
    Sketcher.Constraint("Horizontal", 12, 3, 19, 3),
    Sketcher.Constraint("Horizontal", 11, 3, 20, 3),
    Sketcher.Constraint("Horizontal", 10, 3, 21, 3),
    Sketcher.Constraint("Horizontal", 9, 3, 22, 3),
    Sketcher.Constraint("Horizontal", 8, 3, 23, 3),
    Sketcher.Constraint("Horizontal", 7, 3, 24, 3),
    Sketcher.Constraint("Horizontal", 6, 3, 25, 3),
    Sketcher.Constraint("Horizontal", 5, 3, 26, 3),
    Sketcher.Constraint("Horizontal", 4, 3, 27, 3),
    Sketcher.Constraint("Horizontal", 3, 3, 28, 3),
    Sketcher.Constraint("Horizontal", 2, 3, 29, 3),
    Sketcher.Constraint("Horizontal", 1, 3, 30, 3),
    Sketcher.Constraint("Horizontal", 0, 3, 31, 3),
    Sketcher.Constraint("Diameter", 0, Q("12 mm")),
    Sketcher.Constraint("DistanceX", 19, 3, 4, 3, Q("500 mm")),
    Sketcher.Constraint("DistanceX", -1, 1, 1, 3, Q("142.609998 mm")),
    Sketcher.Constraint("DistanceY", -1, 1, 5, 3, Q("42.609998 mm")),
    Sketcher.Constraint("DistanceX", -1, 1, 9, 3, Q("257.390002 mm")),
    Sketcher.Constraint("DistanceY", -1, 1, 13, 3, Q("157.390002 mm")),
    Sketcher.Constraint("DistanceX", 22, 3, -1, 1, Q("357.390002 mm")),
    Sketcher.Constraint("DistanceX", 30, 3, -1, 1, Q("242.609998 mm")),
    Sketcher.Constraint("DistanceY", 1, 3, 0, 3, Q("23.418299 mm")),
    Sketcher.Constraint("DistanceX", 4, 3, 5, 3, Q("23.418299 mm")),
    Sketcher.Constraint("DistanceY", 6, 3, 2, 3, Q("107.9325 mm")),
    Sketcher.Constraint("DistanceY", 8, 3, 9, 3, Q("23.418299 mm")),
    Sketcher.Constraint("DistanceX", 6, 3, 10, 3, Q("107.9325 mm")),
    Sketcher.Constraint("DistanceX", 13, 3, 12, 3, Q("23.418299 mm")),
    Sketcher.Constraint("DistanceX", 18, 3, 4, 3, Q("476.581701 mm")),
    Sketcher.Constraint("DistanceY", 4, 3, 18, 3, Q("64.559299 mm")),
    Sketcher.Constraint("DistanceY", 21, 3, 17, 3, Q("107.9325 mm")),
    Sketcher.Constraint("DistanceX", 21, 3, 25, 3, Q("107.9325 mm")),
    Sketcher.Constraint("DistanceX", 26, 3, 27, 3, Q("23.418299 mm")),
    Sketcher.Constraint("DistanceX", 17, 3, 29, 3, Q("107.9325 mm")),
    Sketcher.Constraint("DistanceY", -1, 1, 0, 3, Q("180.933081 mm")),
    Sketcher.Constraint("DistanceX", -1, 1, 3, 3, Q("121.541409 mm")),
    Sketcher.Constraint("DistanceY", -1, 1, 3, 3, Q("121.114262 mm")),
    Sketcher.Constraint("DistanceX", -1, 1, 4, 3, Q("119.066919 mm")),
    Sketcher.Constraint("DistanceX", -1, 1, 7, 3, Q("178.885738 mm")),
    Sketcher.Constraint("DistanceY", -1, 1, 7, 3, Q("21.541409 mm")),
    Sketcher.Constraint("DistanceY", -1, 1, 8, 3, Q("19.066919 mm")),
    Sketcher.Constraint("DistanceX", -1, 1, 11, 3, Q("278.458591 mm")),
    Sketcher.Constraint("DistanceY", -1, 1, 11, 3, Q("78.885738 mm")),
    Sketcher.Constraint("DistanceX", -1, 1, 12, 3, Q("280.933081 mm")),
    Sketcher.Constraint("DistanceX", -1, 1, 15, 3, Q("221.114262 mm")),
    Sketcher.Constraint("DistanceY", -1, 1, 15, 3, Q("178.458591 mm")),
    Sketcher.Constraint("DistanceX", 16, 3, -1, 1, Q("321.114262 mm")),
    Sketcher.Constraint("DistanceX", 20, 3, -1, 1, Q("378.458591 mm")),
    Sketcher.Constraint("DistanceX", 24, 3, -1, 1, Q("278.885738 mm")),
    Sketcher.Constraint("DistanceX", 27, 3, -1, 1, Q("219.066919 mm")),
    Sketcher.Constraint("DistanceX", 28, 3, -1, 1, Q("221.541409 mm")),
    Sketcher.Constraint("DistanceX", 2, 3, 1, 3, Q("16.284752 mm")),
    Sketcher.Constraint("DistanceY", 5, 3, 2, 3, Q("91.647749 mm")),
    Sketcher.Constraint("DistanceX", 7, 3, 8, 3, Q("28.283559 mm")),
    Sketcher.Constraint("DistanceX", 6, 3, 9, 3, Q("91.647749 mm")),
    Sketcher.Constraint("DistanceY", 11, 3, 12, 3, Q("28.283559 mm")),
    Sketcher.Constraint("DistanceX", 0, 3, 12, 3, Q("88.102379 mm")),
    Sketcher.Constraint("DistanceY", 10, 3, 13, 3, Q("91.647749 mm")),
    Sketcher.Constraint("DistanceX", 1, 3, 14, 3, Q("91.647749 mm")),
    Sketcher.Constraint("DistanceX", 19, 3, 21, 3, Q("7.258328 mm")),
    Sketcher.Constraint("DistanceX", 23, 3, 24, 3, Q("28.283559 mm")),
    Sketcher.Constraint("DistanceX", 29, 3, 27, 3, Q("7.258328 mm")),
    Sketcher.Constraint("DistanceX", 16, 3, 31, 3, Q("28.283559 mm")),
])
pocket3 = body.newObject("PartDesign::Pocket", "Pocket002")
pocket3.Profile = sketch5
pocket3.Length = 5.5
pocket3.Reversed = True

sketch6 = body.newObject("Sketcher::SketchObject", "Sketch005")
sketch6.AttachmentSupport = (doc.getObject("XY_Plane"), [""])
sketch6.MapMode = "FlatFace"
sketch6.AttachmentOffset = App.Placement(App.Vector(0, 0, 18), App.Rotation())
sketch6.addGeometry([
    Part.LineSegment(App.Vector(-60, 110, 0), App.Vector(-60, 90, 0)),
    Part.LineSegment(App.Vector(-60, 90, 0), App.Vector(-40, 90, 0)),
    Part.LineSegment(App.Vector(-40, 90, 0), App.Vector(-40, 110, 0)),
    Part.LineSegment(App.Vector(-40, 110, 0), App.Vector(-60, 110, 0)),
], False)
sketch6.addConstraint([
    Sketcher.Constraint("Coincident", 0, 2, 1, 1),
    Sketcher.Constraint("Coincident", 1, 2, 2, 1),
    Sketcher.Constraint("Coincident", 2, 2, 3, 1),
    Sketcher.Constraint("Coincident", 3, 2, 0, 1),
    Sketcher.Constraint("Vertical", 0),
    Sketcher.Constraint("Horizontal", 1),
    Sketcher.Constraint("Vertical", 2),
    Sketcher.Constraint("Horizontal", 3),
    Sketcher.Constraint("Equal", 3, 0),
    Sketcher.Constraint("DistanceX", 1, 1, 1, 2, Q("20 mm")),
    Sketcher.Constraint("DistanceX", 0, 2, -1, 1, Q("60 mm")),
    Sketcher.Constraint("DistanceY", -1, 1, 0, 2, Q("90 mm")),
])
pocket4 = body.newObject("PartDesign::Pocket", "Pocket003")
pocket4.Profile = sketch6
pocket4.Length = 4
doc.recompute()

fillet3 = body.newObject("PartDesign::Fillet", "Fillet002")
fillet3.Base = (pocket4, edges_at(pocket4, [
    (-60, 90, 16),
    (-60, 110, 16),
    (-40, 110, 16),
    (-40, 90, 16),
]))
fillet3.Radius = 3

doc.recompute()
